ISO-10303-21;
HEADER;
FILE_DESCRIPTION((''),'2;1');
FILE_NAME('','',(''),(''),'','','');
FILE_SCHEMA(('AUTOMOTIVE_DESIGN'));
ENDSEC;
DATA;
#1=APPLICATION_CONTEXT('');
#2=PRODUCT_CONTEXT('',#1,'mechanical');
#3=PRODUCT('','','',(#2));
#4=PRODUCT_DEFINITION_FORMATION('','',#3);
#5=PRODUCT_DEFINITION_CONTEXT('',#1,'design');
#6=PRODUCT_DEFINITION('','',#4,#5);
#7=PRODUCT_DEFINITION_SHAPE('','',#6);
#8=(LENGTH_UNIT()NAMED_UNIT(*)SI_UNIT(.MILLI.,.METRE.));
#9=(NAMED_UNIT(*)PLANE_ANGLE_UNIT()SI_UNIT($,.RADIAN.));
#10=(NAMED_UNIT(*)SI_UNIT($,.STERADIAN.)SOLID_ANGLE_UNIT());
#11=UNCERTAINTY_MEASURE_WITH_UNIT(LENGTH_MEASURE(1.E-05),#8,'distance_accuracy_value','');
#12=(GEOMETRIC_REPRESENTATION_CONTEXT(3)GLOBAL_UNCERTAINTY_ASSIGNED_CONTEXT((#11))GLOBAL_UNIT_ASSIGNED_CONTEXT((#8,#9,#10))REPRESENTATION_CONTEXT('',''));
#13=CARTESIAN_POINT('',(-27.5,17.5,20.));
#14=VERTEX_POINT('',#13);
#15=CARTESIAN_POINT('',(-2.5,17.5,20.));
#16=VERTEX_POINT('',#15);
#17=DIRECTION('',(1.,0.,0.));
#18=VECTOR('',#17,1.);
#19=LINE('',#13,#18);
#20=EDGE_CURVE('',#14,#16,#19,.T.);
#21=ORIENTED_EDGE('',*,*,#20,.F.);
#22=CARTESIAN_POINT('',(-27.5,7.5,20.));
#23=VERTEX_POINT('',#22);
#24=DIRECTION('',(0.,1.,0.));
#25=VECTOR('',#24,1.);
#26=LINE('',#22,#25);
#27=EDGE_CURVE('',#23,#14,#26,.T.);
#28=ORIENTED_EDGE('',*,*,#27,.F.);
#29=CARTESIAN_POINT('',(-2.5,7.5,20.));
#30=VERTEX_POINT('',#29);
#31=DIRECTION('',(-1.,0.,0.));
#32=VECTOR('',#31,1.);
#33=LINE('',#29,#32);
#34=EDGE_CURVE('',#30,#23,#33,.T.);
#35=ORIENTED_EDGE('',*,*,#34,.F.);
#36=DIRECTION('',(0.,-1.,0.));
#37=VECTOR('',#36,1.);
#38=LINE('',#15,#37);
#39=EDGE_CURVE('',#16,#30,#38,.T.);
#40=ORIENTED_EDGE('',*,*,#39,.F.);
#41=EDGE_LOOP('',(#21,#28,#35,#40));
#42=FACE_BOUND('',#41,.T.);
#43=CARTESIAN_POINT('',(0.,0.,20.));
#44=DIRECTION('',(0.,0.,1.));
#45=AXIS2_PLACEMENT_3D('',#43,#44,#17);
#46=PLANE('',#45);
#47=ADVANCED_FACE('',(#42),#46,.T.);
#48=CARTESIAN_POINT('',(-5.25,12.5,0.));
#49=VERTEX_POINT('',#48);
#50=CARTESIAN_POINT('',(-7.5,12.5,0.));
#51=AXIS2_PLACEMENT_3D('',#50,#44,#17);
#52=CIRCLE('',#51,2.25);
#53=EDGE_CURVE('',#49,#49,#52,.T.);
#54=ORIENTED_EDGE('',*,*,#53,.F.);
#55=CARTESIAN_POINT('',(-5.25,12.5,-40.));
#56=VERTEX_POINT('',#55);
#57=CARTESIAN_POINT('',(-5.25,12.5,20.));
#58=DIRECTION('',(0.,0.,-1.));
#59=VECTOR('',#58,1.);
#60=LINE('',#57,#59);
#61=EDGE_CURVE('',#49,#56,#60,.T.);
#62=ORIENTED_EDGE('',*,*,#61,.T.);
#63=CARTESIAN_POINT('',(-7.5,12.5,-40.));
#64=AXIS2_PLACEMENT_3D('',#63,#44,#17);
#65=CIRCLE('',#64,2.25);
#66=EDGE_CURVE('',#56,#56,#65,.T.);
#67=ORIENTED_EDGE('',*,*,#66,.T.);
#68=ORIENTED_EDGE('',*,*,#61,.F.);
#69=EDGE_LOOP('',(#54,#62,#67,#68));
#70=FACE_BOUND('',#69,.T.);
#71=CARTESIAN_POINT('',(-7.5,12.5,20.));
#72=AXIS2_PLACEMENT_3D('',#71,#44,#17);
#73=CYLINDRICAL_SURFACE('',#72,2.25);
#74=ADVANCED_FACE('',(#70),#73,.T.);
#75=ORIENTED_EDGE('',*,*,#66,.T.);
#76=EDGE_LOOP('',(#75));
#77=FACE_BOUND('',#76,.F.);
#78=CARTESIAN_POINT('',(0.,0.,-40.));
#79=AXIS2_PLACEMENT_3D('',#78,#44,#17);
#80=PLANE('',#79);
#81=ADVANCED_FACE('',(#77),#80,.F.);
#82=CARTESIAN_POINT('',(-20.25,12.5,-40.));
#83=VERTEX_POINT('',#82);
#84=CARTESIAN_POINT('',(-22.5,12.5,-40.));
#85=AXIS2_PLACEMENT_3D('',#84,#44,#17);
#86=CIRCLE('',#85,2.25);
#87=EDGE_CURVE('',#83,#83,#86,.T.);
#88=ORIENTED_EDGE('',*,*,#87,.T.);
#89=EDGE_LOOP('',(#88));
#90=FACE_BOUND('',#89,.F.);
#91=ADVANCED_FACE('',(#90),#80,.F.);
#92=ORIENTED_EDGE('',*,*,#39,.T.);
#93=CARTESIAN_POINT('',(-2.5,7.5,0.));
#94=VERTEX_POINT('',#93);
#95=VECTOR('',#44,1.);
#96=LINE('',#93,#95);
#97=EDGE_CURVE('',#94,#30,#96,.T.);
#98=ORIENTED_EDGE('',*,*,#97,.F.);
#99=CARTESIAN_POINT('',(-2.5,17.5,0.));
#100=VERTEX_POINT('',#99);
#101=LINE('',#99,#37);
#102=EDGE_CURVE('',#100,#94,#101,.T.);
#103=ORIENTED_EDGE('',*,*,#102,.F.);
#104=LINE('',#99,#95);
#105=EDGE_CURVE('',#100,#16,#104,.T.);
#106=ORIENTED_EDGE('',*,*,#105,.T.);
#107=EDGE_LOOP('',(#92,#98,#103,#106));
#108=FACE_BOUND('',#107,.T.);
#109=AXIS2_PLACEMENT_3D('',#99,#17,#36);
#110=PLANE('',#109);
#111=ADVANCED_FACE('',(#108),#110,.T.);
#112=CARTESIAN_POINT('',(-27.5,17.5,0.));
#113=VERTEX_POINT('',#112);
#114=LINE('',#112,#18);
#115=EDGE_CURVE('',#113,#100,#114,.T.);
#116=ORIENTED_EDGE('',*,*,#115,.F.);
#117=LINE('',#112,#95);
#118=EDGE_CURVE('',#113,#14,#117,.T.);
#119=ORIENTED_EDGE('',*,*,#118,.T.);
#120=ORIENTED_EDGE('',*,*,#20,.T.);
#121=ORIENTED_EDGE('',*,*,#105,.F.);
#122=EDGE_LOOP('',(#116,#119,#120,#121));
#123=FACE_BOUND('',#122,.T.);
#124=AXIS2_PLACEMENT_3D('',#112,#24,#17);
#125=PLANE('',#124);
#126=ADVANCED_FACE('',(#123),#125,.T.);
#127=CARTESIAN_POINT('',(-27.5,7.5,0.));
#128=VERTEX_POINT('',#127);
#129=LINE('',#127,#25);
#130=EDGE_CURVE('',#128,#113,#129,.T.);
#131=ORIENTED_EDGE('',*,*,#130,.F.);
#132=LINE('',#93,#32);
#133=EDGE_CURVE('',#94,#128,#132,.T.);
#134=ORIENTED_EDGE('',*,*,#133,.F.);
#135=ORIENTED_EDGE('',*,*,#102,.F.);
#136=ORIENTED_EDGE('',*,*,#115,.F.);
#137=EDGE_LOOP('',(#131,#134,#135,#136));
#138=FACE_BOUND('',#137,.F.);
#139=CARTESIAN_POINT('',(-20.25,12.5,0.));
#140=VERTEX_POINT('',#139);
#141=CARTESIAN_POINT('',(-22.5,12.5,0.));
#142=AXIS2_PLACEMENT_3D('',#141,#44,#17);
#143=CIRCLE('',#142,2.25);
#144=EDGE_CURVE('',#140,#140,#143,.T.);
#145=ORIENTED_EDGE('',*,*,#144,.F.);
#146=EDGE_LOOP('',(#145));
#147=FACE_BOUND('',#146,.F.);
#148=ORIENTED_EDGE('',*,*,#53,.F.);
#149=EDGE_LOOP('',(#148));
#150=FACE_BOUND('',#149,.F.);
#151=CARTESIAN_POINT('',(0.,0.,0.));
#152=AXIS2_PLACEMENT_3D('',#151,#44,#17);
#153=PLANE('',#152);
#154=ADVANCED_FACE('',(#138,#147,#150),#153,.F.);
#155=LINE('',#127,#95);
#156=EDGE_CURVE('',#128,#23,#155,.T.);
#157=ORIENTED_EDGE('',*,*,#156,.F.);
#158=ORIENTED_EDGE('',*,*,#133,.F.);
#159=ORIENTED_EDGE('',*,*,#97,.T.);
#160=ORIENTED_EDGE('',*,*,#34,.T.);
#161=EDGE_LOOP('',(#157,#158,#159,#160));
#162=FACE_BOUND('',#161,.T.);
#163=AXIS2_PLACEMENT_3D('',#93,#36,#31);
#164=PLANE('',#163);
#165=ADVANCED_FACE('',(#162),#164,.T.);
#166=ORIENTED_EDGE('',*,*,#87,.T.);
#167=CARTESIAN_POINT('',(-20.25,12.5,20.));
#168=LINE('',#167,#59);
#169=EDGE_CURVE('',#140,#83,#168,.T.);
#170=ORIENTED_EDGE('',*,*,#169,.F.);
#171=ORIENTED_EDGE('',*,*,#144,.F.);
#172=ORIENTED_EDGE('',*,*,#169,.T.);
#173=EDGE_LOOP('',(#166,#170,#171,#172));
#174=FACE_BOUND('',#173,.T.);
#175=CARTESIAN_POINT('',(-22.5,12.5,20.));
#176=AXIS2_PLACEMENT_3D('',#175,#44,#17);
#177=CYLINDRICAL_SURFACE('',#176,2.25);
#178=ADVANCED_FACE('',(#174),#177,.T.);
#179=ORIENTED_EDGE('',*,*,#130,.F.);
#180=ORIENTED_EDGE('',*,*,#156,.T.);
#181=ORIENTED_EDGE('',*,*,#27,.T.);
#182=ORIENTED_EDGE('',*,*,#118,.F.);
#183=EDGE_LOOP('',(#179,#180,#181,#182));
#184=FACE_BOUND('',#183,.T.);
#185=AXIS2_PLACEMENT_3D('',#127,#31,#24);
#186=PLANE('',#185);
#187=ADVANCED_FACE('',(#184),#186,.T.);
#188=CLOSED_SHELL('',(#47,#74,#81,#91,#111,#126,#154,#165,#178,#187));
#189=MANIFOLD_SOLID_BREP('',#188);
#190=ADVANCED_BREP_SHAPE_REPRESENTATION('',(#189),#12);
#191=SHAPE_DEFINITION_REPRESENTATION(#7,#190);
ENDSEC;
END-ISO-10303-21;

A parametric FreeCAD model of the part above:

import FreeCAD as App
import Part
import Sketcher

V = App.Vector
Q = App.Units.Quantity


def add_polygon(sketch, points):
    """Adds a closed chain of lines whose ends are joined by coincident constraints."""
    first, n = sketch.GeometryCount, len(points)
    for a, b in zip(points, points[1:] + points[:1]):
        sketch.addGeometry(Part.LineSegment(App.Vector(*a, 0), App.Vector(*b, 0)), False)
    for i in range(n):
        sketch.addConstraint(Sketcher.Constraint("Coincident", first + i, 2, first + (i + 1) % n, 1))

doc = App.newDocument("Part")
body = doc.addObject("PartDesign::Body", "Body")

# Sketch on XY plane
sketch1 = body.newObject("Sketcher::SketchObject", "Sketch")
sketch1.AttachmentSupport = (doc.getObject("XY_Plane"), [""])
sketch1.MapMode = "FlatFace"
add_polygon(sketch1, [(-28, 8), (-2, 8), (-2, 18), (-28, 18)])  # lines 0-3
sketch1.addConstraint(Sketcher.Constraint("Horizontal", 0))
sketch1.addConstraint(Sketcher.Constraint("Vertical", 1))
sketch1.addConstraint(Sketcher.Constraint("Horizontal", 2))
sketch1.addConstraint(Sketcher.Constraint("Vertical", 3))
sketch1.addConstraint(Sketcher.Constraint("DistanceX", 0, 1, 0, 2, Q("25 mm")))
sketch1.addConstraint(Sketcher.Constraint("DistanceY", 1, 1, 1, 2, Q("10 mm")))
sketch1.addConstraint(Sketcher.Constraint("DistanceX", 0, 2, -1, 1, Q("2.5 mm")))
sketch1.addConstraint(Sketcher.Constraint("DistanceY", -1, 1, 0, 2, Q("7.5 mm")))
pad1 = body.newObject("PartDesign::Pad", "Pad")
pad1.Profile = sketch1
pad1.Length = 20

# Sketch on XY plane
sketch2 = body.newObject("Sketcher::SketchObject", "Sketch001")
sketch2.AttachmentSupport = (doc.getObject("XY_Plane"), [""])
sketch2.MapMode = "FlatFace"
sketch2.AttachmentOffset = App.Placement(V(0, 0, 20), App.Rotation())
sketch2.addGeometry(Part.Circle(V(-7.5, 12.5, 0), V(0, 0, 1), 2.2), False)
sketch2.addGeometry(Part.Circle(V(-22.5, 12.5, 0), V(0, 0, 1), 2.2), False)
sketch2.addConstraint(Sketcher.Constraint("Equal", 0, 1))
sketch2.addConstraint(Sketcher.Constraint("Horizontal", 0, 3, 1, 3))
sketch2.addConstraint(Sketcher.Constraint("Diameter", 0, Q("4.5 mm")))
sketch2.addConstraint(Sketcher.Constraint("DistanceX", 1, 3, 0, 3, Q("15 mm")))
sketch2.addConstraint(Sketcher.Constraint("DistanceX", 0, 3, -1, 1, Q("7.5 mm")))
sketch2.addConstraint(Sketcher.Constraint("DistanceY", -1, 1, 0, 3, Q("12.5 mm")))
pad2 = body.newObject("PartDesign::Pad", "Pad001")
pad2.Profile = sketch2
pad2.Length = 60
pad2.Reversed = True

doc.recompute()
